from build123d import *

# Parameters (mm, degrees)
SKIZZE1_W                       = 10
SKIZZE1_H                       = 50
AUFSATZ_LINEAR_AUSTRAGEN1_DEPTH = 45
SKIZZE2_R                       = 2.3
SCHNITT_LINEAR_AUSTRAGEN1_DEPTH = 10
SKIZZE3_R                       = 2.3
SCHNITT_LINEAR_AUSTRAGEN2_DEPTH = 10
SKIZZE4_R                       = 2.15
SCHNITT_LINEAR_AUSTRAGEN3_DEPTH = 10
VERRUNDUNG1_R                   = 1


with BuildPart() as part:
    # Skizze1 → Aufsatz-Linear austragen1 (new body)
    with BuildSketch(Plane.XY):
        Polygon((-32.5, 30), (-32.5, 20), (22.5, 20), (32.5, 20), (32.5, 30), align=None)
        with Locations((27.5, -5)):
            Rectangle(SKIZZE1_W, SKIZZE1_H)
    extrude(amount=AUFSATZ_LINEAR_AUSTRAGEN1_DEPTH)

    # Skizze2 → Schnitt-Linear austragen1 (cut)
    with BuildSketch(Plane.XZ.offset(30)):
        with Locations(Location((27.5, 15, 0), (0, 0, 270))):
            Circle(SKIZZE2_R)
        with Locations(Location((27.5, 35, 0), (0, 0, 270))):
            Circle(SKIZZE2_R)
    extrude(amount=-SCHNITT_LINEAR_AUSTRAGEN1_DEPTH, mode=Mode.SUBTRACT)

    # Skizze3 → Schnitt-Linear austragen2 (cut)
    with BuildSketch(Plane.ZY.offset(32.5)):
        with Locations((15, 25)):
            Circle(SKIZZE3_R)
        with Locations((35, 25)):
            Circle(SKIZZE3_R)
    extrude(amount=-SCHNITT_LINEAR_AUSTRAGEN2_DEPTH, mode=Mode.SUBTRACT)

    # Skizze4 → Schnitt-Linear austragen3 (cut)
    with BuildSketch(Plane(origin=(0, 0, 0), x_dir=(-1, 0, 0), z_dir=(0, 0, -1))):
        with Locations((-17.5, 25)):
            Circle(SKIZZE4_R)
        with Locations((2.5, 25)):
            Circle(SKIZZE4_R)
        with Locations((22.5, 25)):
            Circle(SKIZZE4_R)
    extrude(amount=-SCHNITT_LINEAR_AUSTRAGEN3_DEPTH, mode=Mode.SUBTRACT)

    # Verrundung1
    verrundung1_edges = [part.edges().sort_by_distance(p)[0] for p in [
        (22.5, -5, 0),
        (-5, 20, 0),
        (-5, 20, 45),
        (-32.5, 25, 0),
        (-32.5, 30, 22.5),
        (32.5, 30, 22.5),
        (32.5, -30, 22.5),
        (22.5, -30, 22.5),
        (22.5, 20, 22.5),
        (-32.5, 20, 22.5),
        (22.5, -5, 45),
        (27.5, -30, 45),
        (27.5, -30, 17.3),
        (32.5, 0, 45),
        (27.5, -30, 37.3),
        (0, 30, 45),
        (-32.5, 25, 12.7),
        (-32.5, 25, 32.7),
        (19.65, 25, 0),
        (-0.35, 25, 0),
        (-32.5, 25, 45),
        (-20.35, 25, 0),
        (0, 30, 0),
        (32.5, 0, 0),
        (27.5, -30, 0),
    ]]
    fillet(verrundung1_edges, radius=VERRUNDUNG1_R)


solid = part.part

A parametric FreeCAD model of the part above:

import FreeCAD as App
import Part
import Sketcher

V = App.Vector


def edges_at(feature, points):
    """Names of the edges that pass closest to the given points."""
    edges = feature.Shape.Edges
    near = lambda p: min(range(len(edges)), key=lambda i: edges[i].distToShape(Part.Vertex(*p))[0])
    return sorted({f"Edge{near(p) + 1}" for p in points})

doc = App.newDocument("Part")
body = doc.addObject("PartDesign::Body", "Body")

sketch1 = doc.addObject("Sketcher::SketchObject", "Sketch")
body.addObject(sketch1)
sketch1.AttachmentSupport = (doc.XY_Plane, [""])
sketch1.MapMode = "FlatFace"
sketch1.addGeometry(Part.LineSegment(V(-32.5, 30, 0), V(-32.5, 20, 0)), False)
sketch1.addGeometry(Part.LineSegment(V(-32.5, 20, 0), V(22.5, 20, 0)), False)
sketch1.addGeometry(Part.LineSegment(V(22.5, 20, 0), V(22.5, -30, 0)), False)
sketch1.addGeometry(Part.LineSegment(V(22.5, -30, 0), V(32.5, -30, 0)), False)
sketch1.addGeometry(Part.LineSegment(V(32.5, -30, 0), V(32.5, 30, 0)), False)
sketch1.addGeometry(Part.LineSegment(V(32.5, 30, 0), V(-32.5, 30, 0)), False)
sketch1.addConstraint(Sketcher.Constraint("Coincident", 0, 2, 1, 1))
sketch1.addConstraint(Sketcher.Constraint("Coincident", 1, 2, 2, 1))
sketch1.addConstraint(Sketcher.Constraint("Coincident", 2, 2, 3, 1))
sketch1.addConstraint(Sketcher.Constraint("Coincident", 3, 2, 4, 1))
sketch1.addConstraint(Sketcher.Constraint("Coincident", 4, 2, 5, 1))
sketch1.addConstraint(Sketcher.Constraint("Coincident", 5, 2, 0, 1))
sketch1.addConstraint(Sketcher.Constraint("Vertical", 0))
sketch1.addConstraint(Sketcher.Constraint("Horizontal", 1))
sketch1.addConstraint(Sketcher.Constraint("Vertical", 2))
sketch1.addConstraint(Sketcher.Constraint("Horizontal", 3))
sketch1.addConstraint(Sketcher.Constraint("Vertical", 4))
sketch1.addConstraint(Sketcher.Constraint("Horizontal", 5))
sketch1.addConstraint(Sketcher.Constraint("Symmetric", 3, 2, 5, 2, -1, 1))
sketch1.addConstraint(Sketcher.Constraint("Equal", 3, 0))
sketch1.addConstraint(Sketcher.Constraint("DistanceX", 1, 1, 1, 2, 55.0))
sketch1.addConstraint(Sketcher.Constraint("DistanceX", 3, 1, 3, 2, 10.0))
sketch1.addConstraint(Sketcher.Constraint("DistanceY", 2, 2, 2, 1, 50.0))
pad1 = doc.addObject("PartDesign::Pad", "Pad")
body.addObject(pad1)
pad1.Profile = sketch1
pad1.Length = 45

sketch2 = doc.addObject("Sketcher::SketchObject", "Sketch001")
body.addObject(sketch2)
sketch2.AttachmentSupport = (doc.XZ_Plane, [""])
sketch2.MapMode = "FlatFace"
sketch2.AttachmentOffset = App.Placement(V(0, 0, 30), App.Rotation())
sketch2.addGeometry(Part.Circle(V(27.5, 15, 0), V(0, 0, 1), 2.3), False)
sketch2.addGeometry(Part.Circle(V(27.5, 35, 0), V(0, 0, 1), 2.3), False)
sketch2.addConstraint(Sketcher.Constraint("Equal", 0, 1))
sketch2.addConstraint(Sketcher.Constraint("Vertical", 0, 3, 1, 3))
sketch2.addConstraint(Sketcher.Constraint("Diameter", 0, 4.6))
sketch2.addConstraint(Sketcher.Constraint("DistanceY", -1, 1, 0, 3, 15.0))
sketch2.addConstraint(Sketcher.Constraint("DistanceY", -1, 1, 1, 3, 35.0))
sketch2.addConstraint(Sketcher.Constraint("DistanceX", -1, 1, 0, 3, 27.5))
pocket1 = doc.addObject("PartDesign::Pocket", "Pocket")
body.addObject(pocket1)
pocket1.Profile = sketch2
pocket1.Length = 10

sketch3 = doc.addObject("Sketcher::SketchObject", "Sketch002")
body.addObject(sketch3)
sketch3.AttachmentSupport = (doc.YZ_Plane, [""])
sketch3.MapMode = "FlatFace"
sketch3.AttachmentOffset = App.Placement(V(0, 0, -32.5), App.Rotation())
sketch3.addGeometry(Part.Circle(V(25, 15, 0), V(0, 0, 1), 2.3), False)
sketch3.addGeometry(Part.Circle(V(25, 35, 0), V(0, 0, 1), 2.3), False)
sketch3.addConstraint(Sketcher.Constraint("Equal", 0, 1))
sketch3.addConstraint(Sketcher.Constraint("Vertical", 0, 3, 1, 3))
sketch3.addConstraint(Sketcher.Constraint("Diameter", 0, 4.6))
sketch3.addConstraint(Sketcher.Constraint("DistanceX", -1, 1, 0, 3, 25.0))
sketch3.addConstraint(Sketcher.Constraint("DistanceY", -1, 1, 0, 3, 15.0))
sketch3.addConstraint(Sketcher.Constraint("DistanceY", -1, 1, 1, 3, 35.0))
pocket2 = doc.addObject("PartDesign::Pocket", "Pocket001")
body.addObject(pocket2)
pocket2.Profile = sketch3
pocket2.Length = 10
pocket2.Reversed = True

sketch4 = doc.addObject("Sketcher::SketchObject", "Sketch003")
body.addObject(sketch4)
sketch4.AttachmentSupport = (doc.XY_Plane, [""])
sketch4.MapMode = "FlatFace"
sketch4.addGeometry(Part.Circle(V(17.5, 25, 0), V(0, 0, 1), 2.15), False)
sketch4.addGeometry(Part.Circle(V(-2.5, 25, 0), V(0, 0, 1), 2.15), False)
sketch4.addGeometry(Part.Circle(V(-22.5, 25, 0), V(0, 0, 1), 2.15), False)
sketch4.addConstraint(Sketcher.Constraint("Equal", 0, 1))
sketch4.addConstraint(Sketcher.Constraint("Equal", 1, 2))
sketch4.addConstraint(Sketcher.Constraint("Horizontal", 0, 3, 1, 3))
sketch4.addConstraint(Sketcher.Constraint("Horizontal", 1, 3, 2, 3))
sketch4.addConstraint(Sketcher.Constraint("Diameter", 0, 4.3))
sketch4.addConstraint(Sketcher.Constraint("DistanceY", -1, 1, 0, 3, 25.0))
sketch4.addConstraint(Sketcher.Constraint("DistanceX", 1, 3, 0, 3, 20.0))
sketch4.addConstraint(Sketcher.Constraint("DistanceX", 2, 3, 1, 3, 20.0))
sketch4.addConstraint(Sketcher.Constraint("DistanceX", -1, 1, 0, 3, 17.5))
pocket3 = doc.addObject("PartDesign::Pocket", "Pocket002")
body.addObject(pocket3)
pocket3.Profile = sketch4
pocket3.Length = 10
pocket3.Reversed = True
doc.recompute()

fillet = doc.addObject("PartDesign::Fillet", "Fillet")
body.addObject(fillet)
fillet.Base = (pocket3, edges_at(pocket3, [
    (22.5, -5, 0),
    (-5, 20, 0),
    (-5, 20, 45),
    (-32.5, 25, 0),
    (-32.5, 30, 22.5),
    (32.5, 30, 22.5),
    (32.5, -30, 22.5),
    (22.5, -30, 22.5),
    (22.5, 20, 22.5),
    (-32.5, 20, 22.5),
    (22.5, -5, 45),
    (27.5, -30, 45),
    (27.5, -30, 17.3),
    (32.5, 0, 45),
    (27.5, -30, 37.3),
    (0, 30, 45),
    (-32.5, 25, 12.7),
    (-32.5, 25, 32.7),
    (19.65, 25, 0),
    (-0.35, 25, 0),
    (-32.5, 25, 45),
    (-20.35, 25, 0),
    (0, 30, 0),
    (32.5, 0, 0),
    (27.5, -30, 0),
]))
fillet.Radius = 1

doc.recompute()
